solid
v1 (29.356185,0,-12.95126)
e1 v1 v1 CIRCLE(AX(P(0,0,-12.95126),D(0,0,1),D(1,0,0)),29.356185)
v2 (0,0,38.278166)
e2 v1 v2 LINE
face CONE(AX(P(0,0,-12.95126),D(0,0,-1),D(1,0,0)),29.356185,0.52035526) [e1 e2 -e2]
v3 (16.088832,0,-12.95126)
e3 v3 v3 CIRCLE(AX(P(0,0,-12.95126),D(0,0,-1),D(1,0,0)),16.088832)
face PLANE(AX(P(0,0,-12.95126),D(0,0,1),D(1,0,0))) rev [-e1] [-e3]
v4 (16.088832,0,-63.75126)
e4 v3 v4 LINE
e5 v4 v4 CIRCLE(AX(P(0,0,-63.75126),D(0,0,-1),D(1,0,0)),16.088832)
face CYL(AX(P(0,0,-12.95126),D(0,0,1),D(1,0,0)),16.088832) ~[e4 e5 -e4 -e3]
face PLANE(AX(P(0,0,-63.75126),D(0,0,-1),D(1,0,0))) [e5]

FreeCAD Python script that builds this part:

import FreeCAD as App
import Part
import Sketcher
from FreeCAD import Vector
Q = App.Units.Quantity

doc = App.newDocument("Part")
body = doc.addObject("PartDesign::Body", "Body")

# Sketch on XZ plane
sketch1 = doc.addObject("Sketcher::SketchObject", "Sketch")
body.addObject(sketch1)
sketch1.AttachmentSupport = (doc.XZ_Plane, [""])
sketch1.MapMode = "FlatFace"
sketch1.addGeometry(Part.LineSegment(Vector(29, -13, 0), Vector(0, 38, 0)), False)
sketch1.addGeometry(Part.LineSegment(Vector(0, 38, 0), Vector(0, -13, 0)), False)
sketch1.addGeometry(Part.LineSegment(Vector(0, -13, 0), Vector(29, -13, 0)), False)
sketch1.addConstraint(Sketcher.Constraint("Coincident", 0, 2, 1, 1))
sketch1.addConstraint(Sketcher.Constraint("Coincident", 1, 2, 2, 1))
sketch1.addConstraint(Sketcher.Constraint("Coincident", 2, 2, 0, 1))
sketch1.addConstraint(Sketcher.Constraint("Vertical", 1))
sketch1.addConstraint(Sketcher.Constraint("Horizontal", 2))
sketch1.addConstraint(Sketcher.Constraint("PointOnObject", 0, 2, -2))
sketch1.addConstraint(Sketcher.Constraint("DistanceX", 2, 1, 2, 2, 29.356185))
sketch1.addConstraint(Sketcher.Constraint("DistanceY", 1, 2, 1, 1, 51.229426))
sketch1.addConstraint(Sketcher.Constraint("DistanceY", 1, 2, -1, 1, 12.95126))
revolution = doc.addObject("PartDesign::Revolution", "Revolution")
body.addObject(revolution)
revolution.Profile = sketch1
revolution.ReferenceAxis = (sketch1, ["V_Axis"])
revolution.Angle = 360

# Sketch on XY plane
sketch2 = doc.addObject("Sketcher::SketchObject", "Sketch001")
body.addObject(sketch2)
sketch2.AttachmentSupport = (doc.XY_Plane, [""])
sketch2.MapMode = "FlatFace"
sketch2.AttachmentOffset = App.Placement(Vector(0, 0, -12.95126), App.Rotation())
sketch2.addGeometry(Part.Circle(Vector(0, 0, 0), Vector(0, 0, 1), 16), False)
sketch2.addConstraint(Sketcher.Constraint("Coincident", 0, 3, -1, 1))
sketch2.addConstraint(Sketcher.Constraint("Diameter", 0, 32.177664))
pad1 = doc.addObject("PartDesign::Pad", "Pad")
body.addObject(pad1)
pad1.Profile = sketch2
pad1.Length = Q("2 in")
pad1.Reversed = True

doc.recompute()
